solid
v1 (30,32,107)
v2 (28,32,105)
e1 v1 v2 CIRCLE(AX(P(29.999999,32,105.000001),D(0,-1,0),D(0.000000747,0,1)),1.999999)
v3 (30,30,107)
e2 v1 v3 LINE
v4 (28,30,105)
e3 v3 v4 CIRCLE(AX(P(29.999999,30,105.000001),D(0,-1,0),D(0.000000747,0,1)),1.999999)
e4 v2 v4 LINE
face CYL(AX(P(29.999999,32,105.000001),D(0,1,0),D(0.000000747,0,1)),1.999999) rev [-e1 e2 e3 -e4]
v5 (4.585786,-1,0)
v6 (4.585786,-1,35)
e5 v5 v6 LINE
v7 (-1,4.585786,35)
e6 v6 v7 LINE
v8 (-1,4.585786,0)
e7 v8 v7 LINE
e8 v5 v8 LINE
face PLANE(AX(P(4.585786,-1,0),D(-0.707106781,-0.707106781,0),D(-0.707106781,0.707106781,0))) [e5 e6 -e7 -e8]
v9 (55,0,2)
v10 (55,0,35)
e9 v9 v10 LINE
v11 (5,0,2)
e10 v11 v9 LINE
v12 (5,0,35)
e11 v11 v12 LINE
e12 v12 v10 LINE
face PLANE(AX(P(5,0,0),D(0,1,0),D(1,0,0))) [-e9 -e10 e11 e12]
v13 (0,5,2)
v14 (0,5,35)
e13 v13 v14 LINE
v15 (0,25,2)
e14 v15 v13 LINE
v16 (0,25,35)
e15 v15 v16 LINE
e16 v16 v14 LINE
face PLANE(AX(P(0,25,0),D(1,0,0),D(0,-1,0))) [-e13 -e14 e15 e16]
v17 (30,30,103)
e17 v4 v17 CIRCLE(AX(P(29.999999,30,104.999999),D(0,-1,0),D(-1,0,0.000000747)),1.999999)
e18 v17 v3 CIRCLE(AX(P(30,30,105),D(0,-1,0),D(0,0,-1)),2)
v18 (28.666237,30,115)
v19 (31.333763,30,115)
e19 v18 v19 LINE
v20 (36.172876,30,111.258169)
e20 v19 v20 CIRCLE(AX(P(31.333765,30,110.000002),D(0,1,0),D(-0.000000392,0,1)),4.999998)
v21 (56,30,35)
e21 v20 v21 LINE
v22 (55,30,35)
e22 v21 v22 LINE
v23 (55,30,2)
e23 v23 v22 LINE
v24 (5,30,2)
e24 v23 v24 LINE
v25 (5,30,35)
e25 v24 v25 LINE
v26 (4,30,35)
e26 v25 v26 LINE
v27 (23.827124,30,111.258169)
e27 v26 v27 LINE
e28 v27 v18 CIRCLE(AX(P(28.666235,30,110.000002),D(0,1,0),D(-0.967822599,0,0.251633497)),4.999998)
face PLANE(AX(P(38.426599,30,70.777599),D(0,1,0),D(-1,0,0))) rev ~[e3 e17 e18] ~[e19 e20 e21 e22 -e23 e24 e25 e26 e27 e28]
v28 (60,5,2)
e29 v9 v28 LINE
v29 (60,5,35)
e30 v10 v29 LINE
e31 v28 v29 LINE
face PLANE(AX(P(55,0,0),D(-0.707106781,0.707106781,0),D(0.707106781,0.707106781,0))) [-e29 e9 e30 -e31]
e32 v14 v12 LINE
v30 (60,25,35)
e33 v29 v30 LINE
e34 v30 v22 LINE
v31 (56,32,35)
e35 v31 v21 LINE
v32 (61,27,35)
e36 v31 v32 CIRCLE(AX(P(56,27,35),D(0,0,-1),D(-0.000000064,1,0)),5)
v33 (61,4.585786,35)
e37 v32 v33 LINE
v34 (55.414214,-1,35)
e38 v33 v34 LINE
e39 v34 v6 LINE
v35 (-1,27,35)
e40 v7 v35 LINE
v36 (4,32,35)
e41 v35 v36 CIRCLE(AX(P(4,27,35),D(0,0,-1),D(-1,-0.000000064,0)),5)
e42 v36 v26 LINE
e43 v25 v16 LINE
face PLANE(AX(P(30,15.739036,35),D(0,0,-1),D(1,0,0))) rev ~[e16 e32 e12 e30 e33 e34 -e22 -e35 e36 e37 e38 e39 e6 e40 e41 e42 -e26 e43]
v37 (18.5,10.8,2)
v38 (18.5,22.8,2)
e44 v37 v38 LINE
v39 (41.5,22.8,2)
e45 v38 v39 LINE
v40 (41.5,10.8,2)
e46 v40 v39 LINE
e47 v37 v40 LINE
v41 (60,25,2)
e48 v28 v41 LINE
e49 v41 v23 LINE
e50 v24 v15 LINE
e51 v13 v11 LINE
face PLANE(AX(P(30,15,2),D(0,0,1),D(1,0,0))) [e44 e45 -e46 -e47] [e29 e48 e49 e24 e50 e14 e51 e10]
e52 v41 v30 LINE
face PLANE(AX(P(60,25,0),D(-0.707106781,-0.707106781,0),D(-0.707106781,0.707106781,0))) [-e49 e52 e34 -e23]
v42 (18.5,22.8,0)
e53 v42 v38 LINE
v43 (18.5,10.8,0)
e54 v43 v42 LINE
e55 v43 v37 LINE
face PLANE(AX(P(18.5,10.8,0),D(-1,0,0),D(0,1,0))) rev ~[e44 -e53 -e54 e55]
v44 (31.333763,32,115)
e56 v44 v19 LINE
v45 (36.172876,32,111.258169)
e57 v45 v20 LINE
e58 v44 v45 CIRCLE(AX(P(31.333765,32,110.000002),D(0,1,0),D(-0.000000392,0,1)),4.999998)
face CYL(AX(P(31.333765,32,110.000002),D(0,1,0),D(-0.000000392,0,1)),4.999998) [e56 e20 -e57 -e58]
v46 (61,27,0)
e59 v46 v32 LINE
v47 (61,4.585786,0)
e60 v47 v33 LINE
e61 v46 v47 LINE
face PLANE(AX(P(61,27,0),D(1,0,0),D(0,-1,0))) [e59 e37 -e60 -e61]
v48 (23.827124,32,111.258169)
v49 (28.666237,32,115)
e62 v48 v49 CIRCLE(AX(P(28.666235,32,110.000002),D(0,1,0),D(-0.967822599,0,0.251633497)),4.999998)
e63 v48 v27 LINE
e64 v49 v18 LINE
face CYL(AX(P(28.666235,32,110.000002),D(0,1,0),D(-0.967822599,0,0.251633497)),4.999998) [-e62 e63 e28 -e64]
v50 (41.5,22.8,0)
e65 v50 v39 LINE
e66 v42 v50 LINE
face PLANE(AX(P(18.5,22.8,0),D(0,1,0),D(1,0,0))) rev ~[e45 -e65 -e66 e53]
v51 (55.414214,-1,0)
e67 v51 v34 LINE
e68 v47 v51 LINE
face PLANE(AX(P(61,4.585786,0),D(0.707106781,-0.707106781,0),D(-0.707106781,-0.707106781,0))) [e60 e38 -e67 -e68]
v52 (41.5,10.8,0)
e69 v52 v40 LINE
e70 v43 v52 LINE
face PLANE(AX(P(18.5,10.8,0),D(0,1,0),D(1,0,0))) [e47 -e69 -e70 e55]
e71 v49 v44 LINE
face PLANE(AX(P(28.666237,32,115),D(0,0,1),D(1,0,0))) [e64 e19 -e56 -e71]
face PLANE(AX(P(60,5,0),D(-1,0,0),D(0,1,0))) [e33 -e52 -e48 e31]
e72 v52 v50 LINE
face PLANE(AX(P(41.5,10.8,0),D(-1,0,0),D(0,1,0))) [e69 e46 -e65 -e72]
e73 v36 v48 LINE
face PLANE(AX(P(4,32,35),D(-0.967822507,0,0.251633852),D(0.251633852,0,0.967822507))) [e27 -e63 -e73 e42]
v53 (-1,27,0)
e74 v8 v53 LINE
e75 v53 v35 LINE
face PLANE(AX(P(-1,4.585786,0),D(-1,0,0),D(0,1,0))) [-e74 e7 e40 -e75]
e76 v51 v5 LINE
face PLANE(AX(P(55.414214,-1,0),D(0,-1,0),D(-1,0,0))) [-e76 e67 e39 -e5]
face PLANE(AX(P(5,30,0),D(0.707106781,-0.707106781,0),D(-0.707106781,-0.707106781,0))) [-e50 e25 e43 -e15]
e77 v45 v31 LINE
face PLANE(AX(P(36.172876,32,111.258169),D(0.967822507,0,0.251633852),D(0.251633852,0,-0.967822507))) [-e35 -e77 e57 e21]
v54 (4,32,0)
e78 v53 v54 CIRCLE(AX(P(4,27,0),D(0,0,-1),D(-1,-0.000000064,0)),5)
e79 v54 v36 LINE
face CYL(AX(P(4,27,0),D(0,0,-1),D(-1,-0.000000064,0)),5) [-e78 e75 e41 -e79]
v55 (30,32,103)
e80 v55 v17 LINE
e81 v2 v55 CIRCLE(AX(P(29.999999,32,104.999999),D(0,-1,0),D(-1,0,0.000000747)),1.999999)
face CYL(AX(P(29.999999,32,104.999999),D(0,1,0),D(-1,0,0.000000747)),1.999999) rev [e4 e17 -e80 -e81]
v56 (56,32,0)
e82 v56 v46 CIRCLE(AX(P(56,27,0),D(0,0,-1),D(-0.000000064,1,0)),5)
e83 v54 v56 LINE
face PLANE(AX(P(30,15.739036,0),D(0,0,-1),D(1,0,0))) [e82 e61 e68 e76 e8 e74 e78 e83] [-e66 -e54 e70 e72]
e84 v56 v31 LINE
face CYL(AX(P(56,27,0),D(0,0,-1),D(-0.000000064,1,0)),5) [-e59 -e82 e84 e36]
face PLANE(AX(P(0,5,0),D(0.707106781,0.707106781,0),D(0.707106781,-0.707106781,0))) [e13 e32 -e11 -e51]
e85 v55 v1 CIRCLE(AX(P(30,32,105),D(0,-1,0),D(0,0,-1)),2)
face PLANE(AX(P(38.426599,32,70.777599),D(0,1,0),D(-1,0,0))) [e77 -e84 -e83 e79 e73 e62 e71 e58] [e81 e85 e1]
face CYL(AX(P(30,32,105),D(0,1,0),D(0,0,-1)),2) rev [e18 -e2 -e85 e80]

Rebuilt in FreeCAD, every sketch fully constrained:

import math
import FreeCAD as App
import Part
import Sketcher

V = App.Vector


def add_polygon(sketch, points):
    """Adds a closed chain of lines whose ends are joined by coincident constraints."""
    first, n = sketch.GeometryCount, len(points)
    for a, b in zip(points, points[1:] + points[:1]):
        sketch.addGeometry(Part.LineSegment(App.Vector(*a, 0), App.Vector(*b, 0)), False)
    for i in range(n):
        sketch.addConstraint(Sketcher.Constraint("Coincident", first + i, 2, first + (i + 1) % n, 1))

doc = App.newDocument("Part")
body = doc.addObject("PartDesign::Body", "Body")

# Sketch on XY plane
sketch1 = doc.addObject("Sketcher::SketchObject", "Sketch")
body.addObject(sketch1)
sketch1.AttachmentSupport = (doc.XY_Plane, [""])
sketch1.MapMode = "FlatFace"
add_polygon(sketch1, [(0, 5), (5, 0), (55, 0), (60, 5), (60, 25), (55, 30), (5, 30), (0, 25)])  # lines 0-7
add_polygon(sketch1, [(41.5, 10.8), (18.5, 10.8), (18.5, 22.8), (41.5, 22.8)])  # lines 8-11
sketch1.addConstraint([
    Sketcher.Constraint("Horizontal", 1),
    Sketcher.Constraint("Vertical", 3),
    Sketcher.Constraint("Horizontal", 5),
    Sketcher.Constraint("Vertical", 7),
    Sketcher.Constraint("Horizontal", 8),
    Sketcher.Constraint("Vertical", 9),
    Sketcher.Constraint("Horizontal", 10),
    Sketcher.Constraint("Vertical", 11),
    Sketcher.Constraint("PointOnObject", 0, 2, -1),
    Sketcher.Constraint("PointOnObject", 6, 2, -2),
    Sketcher.Constraint("Perpendicular", 0, 2),
    Sketcher.Constraint("Perpendicular", 2, 4),
    Sketcher.Constraint("Perpendicular", 4, 6),
    Sketcher.Constraint("Horizontal", 3, 2, 6, 2),
    Sketcher.Constraint("Horizontal", 2, 2, 7, 2),
    Sketcher.Constraint("Vertical", 1, 2, 4, 2),
    Sketcher.Constraint("Vertical", 0, 2, 5, 2),
    Sketcher.Constraint("DistanceX", 1, 1, 1, 2, 50.0),
    Sketcher.Constraint("DistanceX", 8, 2, 8, 1, 23.0),
    Sketcher.Constraint("DistanceY", 3, 1, 3, 2, 20.0),
    Sketcher.Constraint("DistanceY", 9, 1, 9, 2, 12.0),
    Sketcher.Constraint("DistanceX", -1, 1, 0, 2, 5.0),
    Sketcher.Constraint("DistanceX", -1, 1, 8, 2, 18.5),
    Sketcher.Constraint("DistanceY", -1, 1, 8, 2, 10.8),
])
pad1 = doc.addObject("PartDesign::Pad", "Pad")
body.addObject(pad1)
pad1.Profile = sketch1
pad1.Length = 2

# Sketch on XY plane
sketch2 = doc.addObject("Sketcher::SketchObject", "Sketch001")
body.addObject(sketch2)
sketch2.AttachmentSupport = (doc.XY_Plane, [""])
sketch2.MapMode = "FlatFace"
sketch2.addGeometry(Part.LineSegment(V(61, 27, 0), V(61, 4.585786, 0)), False)  # 0
sketch2.addGeometry(Part.LineSegment(V(61, 4.585786, 0), V(55.414214, -1, 0)), False)  # 1
sketch2.addGeometry(Part.LineSegment(V(55.414214, -1, 0), V(4.585786, -1, 0)), False)  # 2
sketch2.addGeometry(Part.LineSegment(V(4.585786, -1, 0), V(-1, 4.585786, 0)), False)  # 3
sketch2.addGeometry(Part.LineSegment(V(-1, 4.585786, 0), V(-1, 27, 0)), False)  # 4
sketch2.addGeometry(Part.ArcOfCircle(Part.Circle(V(4, 27, 0), V(0, 0, 1), 5), math.radians(89.999996), math.radians(180.000004)), False)  # 5
sketch2.addGeometry(Part.LineSegment(V(4, 32, 0), V(56, 32, 0)), False)  # 6
sketch2.addGeometry(Part.ArcOfCircle(Part.Circle(V(56, 27, 0), V(0, 0, 1), 5), math.radians(-0.000004), math.radians(90.000004)), False)  # 7
add_polygon(sketch2, [(55, 30), (5, 30), (0, 25), (0, 5), (5, 0), (55, 0), (60, 5), (60, 25)])  # lines 8-15
sketch2.addConstraint([
    Sketcher.Constraint("Coincident", 0, 2, 1, 1),
    Sketcher.Constraint("Coincident", 1, 2, 2, 1),
    Sketcher.Constraint("Coincident", 2, 2, 3, 1),
    Sketcher.Constraint("Coincident", 3, 2, 4, 1),
    Sketcher.Constraint("Tangent", 4, 2, 5, 2),
    Sketcher.Constraint("Tangent", 5, 1, 6, 1),
    Sketcher.Constraint("Tangent", 6, 2, 7, 2),
    Sketcher.Constraint("Tangent", 7, 1, 0, 1),
    Sketcher.Constraint("Vertical", 0),
    Sketcher.Constraint("Horizontal", 2),
    Sketcher.Constraint("Vertical", 4),
    Sketcher.Constraint("Horizontal", 6),
    Sketcher.Constraint("Horizontal", 8),
    Sketcher.Constraint("Vertical", 10),
    Sketcher.Constraint("Horizontal", 12),
    Sketcher.Constraint("Vertical", 14),
    Sketcher.Constraint("Equal", 5, 7),
    Sketcher.Constraint("PointOnObject", 9, 2, -2),
    Sketcher.Constraint("PointOnObject", 11, 2, -1),
    Sketcher.Constraint("Perpendicular", 1, 3),
    Sketcher.Constraint("Perpendicular", 3, 9),
    Sketcher.Constraint("Perpendicular", 9, 11),
    Sketcher.Constraint("Perpendicular", 11, 13),
    Sketcher.Constraint("Perpendicular", 13, 15),
    Sketcher.Constraint("Horizontal", 0, 2, 3, 2),
    Sketcher.Constraint("Horizontal", 10, 2, 13, 2),
    Sketcher.Constraint("Horizontal", 9, 2, 14, 2),
    Sketcher.Constraint("Vertical", 8, 2, 11, 2),
    Sketcher.Constraint("Vertical", 12, 2, 15, 2),
    Sketcher.Constraint("Radius", 5, 5.0),
    Sketcher.Constraint("DistanceX", 6, 1, 6, 2, 52.0),
    Sketcher.Constraint("DistanceX", 8, 2, 8, 1, 50.0),
    Sketcher.Constraint("DistanceY", 10, 2, 10, 1, 20.0),
    Sketcher.Constraint("DistanceX", -1, 1, 5, 3, 4.0),
    Sketcher.Constraint("DistanceY", -1, 1, 5, 3, 27.0),
    Sketcher.Constraint("DistanceY", 1, 2, -1, 1, 1.0),
    Sketcher.Constraint("DistanceX", -1, 1, 8, 2, 5.0),
    Sketcher.Constraint("DistanceX", 2, 2, 2, 1, 50.828428),
])
pad2 = doc.addObject("PartDesign::Pad", "Pad001")
body.addObject(pad2)
pad2.Profile = sketch2
pad2.Length = 35

# Sketch on XZ plane
sketch3 = doc.addObject("Sketcher::SketchObject", "Sketch002")
body.addObject(sketch3)
sketch3.AttachmentSupport = (doc.XZ_Plane, [""])
sketch3.MapMode = "FlatFace"
sketch3.AttachmentOffset = App.Placement(V(0, 0, -32), App.Rotation())
sketch3.addGeometry([
    Part.LineSegment(V(56, 35, 0), V(4, 35, 0)),  # 0
    Part.LineSegment(V(4, 35, 0), V(23.827124, 111.258169, 0)),  # 1
    Part.ArcOfCircle(Part.Circle(V(28.666235, 110.000002, 0), V(0, 0, 1), 4.999998), math.radians(89.999978), math.radians(165.425805)),  # 2
    Part.LineSegment(V(28.666237, 115, 0), V(31.333763, 115, 0)),  # 3
    Part.ArcOfCircle(Part.Circle(V(31.333765, 110.000002, 0), V(0, 0, 1), 4.999998), math.radians(14.574195), math.radians(90.000022)),  # 4
    Part.LineSegment(V(36.172876, 111.258169, 0), V(56, 35, 0)),  # 5
    Part.ArcOfCircle(Part.Circle(V(30, 105, 0), V(0, 0, 1), 2), math.radians(-90), math.radians(90)),  # 6
    Part.ArcOfCircle(Part.Circle(V(29.999999, 105.000001, 0), V(0, 0, 1), 1.999999), math.radians(89.999957), math.radians(180.000043)),  # 7
    Part.ArcOfCircle(Part.Circle(V(29.999999, 104.999999, 0), V(0, 0, 1), 1.999999), math.radians(179.999957), math.radians(270.000043)),  # 8
], False)
sketch3.addConstraint([
    Sketcher.Constraint("Coincident", 0, 2, 1, 1),
    Sketcher.Constraint("Tangent", 1, 2, 2, 2),
    Sketcher.Constraint("Tangent", 2, 1, 3, 1),
    Sketcher.Constraint("Tangent", 3, 2, 4, 2),
    Sketcher.Constraint("Tangent", 4, 1, 5, 1),
    Sketcher.Constraint("Coincident", 5, 2, 0, 1),
    Sketcher.Constraint("Tangent", 6, 2, 7, 1),
    Sketcher.Constraint("Tangent", 7, 2, 8, 1),
    Sketcher.Constraint("Tangent", 8, 2, 6, 1),
    Sketcher.Constraint("Horizontal", 0),
    Sketcher.Constraint("Horizontal", 3),
    Sketcher.Constraint("Equal", 2, 4),
    Sketcher.Constraint("Horizontal", 1, 2, 4, 1),
    Sketcher.Constraint("Horizontal", 8, 3, 7, 2),
    Sketcher.Constraint("Vertical", 8, 3, 6, 2),
    Sketcher.Constraint("Vertical", 6, 2, 8, 2),
    Sketcher.Constraint("Radius", 6, 2.0),
    Sketcher.Constraint("DistanceX", 0, 2, 0, 1, 52.0),
    Sketcher.Constraint("DistanceX", -1, 1, 6, 3, 30.0),
    Sketcher.Constraint("DistanceY", -1, 1, 6, 3, 105.0),
    Sketcher.Constraint("DistanceX", -1, 1, 0, 2, 4.0),
    Sketcher.Constraint("DistanceY", -1, 1, 0, 2, 35.0),
    Sketcher.Constraint("DistanceY", -1, 1, 2, 1, 115.0),
    Sketcher.Constraint("DistanceY", 7, 3, 2, 3, 5.000001),
    Sketcher.Constraint("DistanceX", 3, 1, 3, 2, 2.667526),
])
pad3 = doc.addObject("PartDesign::Pad", "Pad002")
body.addObject(pad3)
pad3.Profile = sketch3
pad3.Length = 2

doc.recompute()
